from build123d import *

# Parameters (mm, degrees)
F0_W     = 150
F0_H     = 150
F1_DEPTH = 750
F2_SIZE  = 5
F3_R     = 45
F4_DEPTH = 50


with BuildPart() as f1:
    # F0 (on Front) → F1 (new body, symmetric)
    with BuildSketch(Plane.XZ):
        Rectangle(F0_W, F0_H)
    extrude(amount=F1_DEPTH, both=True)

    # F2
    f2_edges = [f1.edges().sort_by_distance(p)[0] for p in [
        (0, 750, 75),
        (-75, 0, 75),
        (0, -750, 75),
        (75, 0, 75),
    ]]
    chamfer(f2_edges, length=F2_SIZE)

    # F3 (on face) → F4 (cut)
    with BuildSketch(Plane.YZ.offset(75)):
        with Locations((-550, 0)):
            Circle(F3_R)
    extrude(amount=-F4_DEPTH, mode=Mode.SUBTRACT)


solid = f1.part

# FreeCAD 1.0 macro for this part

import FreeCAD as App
import Part
import Sketcher
from FreeCAD import Vector
Q = App.Units.Quantity


def edges_at(feature, points):
    """Names of the edges that pass closest to the given points."""
    edges = feature.Shape.Edges
    near = lambda p: min(range(len(edges)), key=lambda i: edges[i].distToShape(Part.Vertex(*p))[0])
    return sorted({f"Edge{near(p) + 1}" for p in points})


def add_polygon(sketch, points):
    """Adds a closed chain of lines whose ends are joined by coincident constraints."""
    first, n = sketch.GeometryCount, len(points)
    for a, b in zip(points, points[1:] + points[:1]):
        sketch.addGeometry(Part.LineSegment(App.Vector(*a, 0), App.Vector(*b, 0)), False)
    for i in range(n):
        sketch.addConstraint(Sketcher.Constraint("Coincident", first + i, 2, first + (i + 1) % n, 1))

doc = App.newDocument("Part")
body = doc.addObject("PartDesign::Body", "Body")

sketch1 = body.newObject("Sketcher::SketchObject", "Sketch")
sketch1.AttachmentSupport = (doc.getObject("XZ_Plane"), [""])
sketch1.MapMode = "FlatFace"
add_polygon(sketch1, [(-75, 75), (-75, -75), (75, -75), (75, 75)])
sketch1.addConstraint([
    Sketcher.Constraint("Vertical", 0),
    Sketcher.Constraint("Horizontal", 1),
    Sketcher.Constraint("Vertical", 2),
    Sketcher.Constraint("Horizontal", 3),
    Sketcher.Constraint("Symmetric", 0, 2, 2, 2, -1, 1),
    Sketcher.Constraint("Equal", 3, 0),
    Sketcher.Constraint("DistanceX", 1, 1, 1, 2, Q("150 mm")),
])
pad1 = body.newObject("PartDesign::Pad", "Pad")
pad1.Profile = sketch1
pad1.Length = 1500
pad1.Midplane = True
doc.recompute()

chamfer = body.newObject("PartDesign::Chamfer", "Chamfer")
chamfer.Base = (pad1, edges_at(pad1, [
    (0, 750, 75),
    (-75, 0, 75),
    (0, -750, 75),
    (75, 0, 75),
]))
chamfer.Size = 5

sketch2 = body.newObject("Sketcher::SketchObject", "Sketch001")
sketch2.AttachmentSupport = (doc.getObject("YZ_Plane"), [""])
sketch2.MapMode = "FlatFace"
sketch2.AttachmentOffset = App.Placement(Vector(0, 0, 75), App.Rotation())
sketch2.addGeometry(Part.Circle(Vector(-550, 0, 0), Vector(0, 0, 1), 45), False)
sketch2.addConstraint([
    Sketcher.Constraint("PointOnObject", 0, 3, -1),
    Sketcher.Constraint("Diameter", 0, Q("90 mm")),
    Sketcher.Constraint("DistanceX", 0, 3, -1, 1, Q("550 mm")),
])
pocket1 = body.newObject("PartDesign::Pocket", "Pocket")
pocket1.Profile = sketch2
pocket1.Length = 50

doc.recompute()
